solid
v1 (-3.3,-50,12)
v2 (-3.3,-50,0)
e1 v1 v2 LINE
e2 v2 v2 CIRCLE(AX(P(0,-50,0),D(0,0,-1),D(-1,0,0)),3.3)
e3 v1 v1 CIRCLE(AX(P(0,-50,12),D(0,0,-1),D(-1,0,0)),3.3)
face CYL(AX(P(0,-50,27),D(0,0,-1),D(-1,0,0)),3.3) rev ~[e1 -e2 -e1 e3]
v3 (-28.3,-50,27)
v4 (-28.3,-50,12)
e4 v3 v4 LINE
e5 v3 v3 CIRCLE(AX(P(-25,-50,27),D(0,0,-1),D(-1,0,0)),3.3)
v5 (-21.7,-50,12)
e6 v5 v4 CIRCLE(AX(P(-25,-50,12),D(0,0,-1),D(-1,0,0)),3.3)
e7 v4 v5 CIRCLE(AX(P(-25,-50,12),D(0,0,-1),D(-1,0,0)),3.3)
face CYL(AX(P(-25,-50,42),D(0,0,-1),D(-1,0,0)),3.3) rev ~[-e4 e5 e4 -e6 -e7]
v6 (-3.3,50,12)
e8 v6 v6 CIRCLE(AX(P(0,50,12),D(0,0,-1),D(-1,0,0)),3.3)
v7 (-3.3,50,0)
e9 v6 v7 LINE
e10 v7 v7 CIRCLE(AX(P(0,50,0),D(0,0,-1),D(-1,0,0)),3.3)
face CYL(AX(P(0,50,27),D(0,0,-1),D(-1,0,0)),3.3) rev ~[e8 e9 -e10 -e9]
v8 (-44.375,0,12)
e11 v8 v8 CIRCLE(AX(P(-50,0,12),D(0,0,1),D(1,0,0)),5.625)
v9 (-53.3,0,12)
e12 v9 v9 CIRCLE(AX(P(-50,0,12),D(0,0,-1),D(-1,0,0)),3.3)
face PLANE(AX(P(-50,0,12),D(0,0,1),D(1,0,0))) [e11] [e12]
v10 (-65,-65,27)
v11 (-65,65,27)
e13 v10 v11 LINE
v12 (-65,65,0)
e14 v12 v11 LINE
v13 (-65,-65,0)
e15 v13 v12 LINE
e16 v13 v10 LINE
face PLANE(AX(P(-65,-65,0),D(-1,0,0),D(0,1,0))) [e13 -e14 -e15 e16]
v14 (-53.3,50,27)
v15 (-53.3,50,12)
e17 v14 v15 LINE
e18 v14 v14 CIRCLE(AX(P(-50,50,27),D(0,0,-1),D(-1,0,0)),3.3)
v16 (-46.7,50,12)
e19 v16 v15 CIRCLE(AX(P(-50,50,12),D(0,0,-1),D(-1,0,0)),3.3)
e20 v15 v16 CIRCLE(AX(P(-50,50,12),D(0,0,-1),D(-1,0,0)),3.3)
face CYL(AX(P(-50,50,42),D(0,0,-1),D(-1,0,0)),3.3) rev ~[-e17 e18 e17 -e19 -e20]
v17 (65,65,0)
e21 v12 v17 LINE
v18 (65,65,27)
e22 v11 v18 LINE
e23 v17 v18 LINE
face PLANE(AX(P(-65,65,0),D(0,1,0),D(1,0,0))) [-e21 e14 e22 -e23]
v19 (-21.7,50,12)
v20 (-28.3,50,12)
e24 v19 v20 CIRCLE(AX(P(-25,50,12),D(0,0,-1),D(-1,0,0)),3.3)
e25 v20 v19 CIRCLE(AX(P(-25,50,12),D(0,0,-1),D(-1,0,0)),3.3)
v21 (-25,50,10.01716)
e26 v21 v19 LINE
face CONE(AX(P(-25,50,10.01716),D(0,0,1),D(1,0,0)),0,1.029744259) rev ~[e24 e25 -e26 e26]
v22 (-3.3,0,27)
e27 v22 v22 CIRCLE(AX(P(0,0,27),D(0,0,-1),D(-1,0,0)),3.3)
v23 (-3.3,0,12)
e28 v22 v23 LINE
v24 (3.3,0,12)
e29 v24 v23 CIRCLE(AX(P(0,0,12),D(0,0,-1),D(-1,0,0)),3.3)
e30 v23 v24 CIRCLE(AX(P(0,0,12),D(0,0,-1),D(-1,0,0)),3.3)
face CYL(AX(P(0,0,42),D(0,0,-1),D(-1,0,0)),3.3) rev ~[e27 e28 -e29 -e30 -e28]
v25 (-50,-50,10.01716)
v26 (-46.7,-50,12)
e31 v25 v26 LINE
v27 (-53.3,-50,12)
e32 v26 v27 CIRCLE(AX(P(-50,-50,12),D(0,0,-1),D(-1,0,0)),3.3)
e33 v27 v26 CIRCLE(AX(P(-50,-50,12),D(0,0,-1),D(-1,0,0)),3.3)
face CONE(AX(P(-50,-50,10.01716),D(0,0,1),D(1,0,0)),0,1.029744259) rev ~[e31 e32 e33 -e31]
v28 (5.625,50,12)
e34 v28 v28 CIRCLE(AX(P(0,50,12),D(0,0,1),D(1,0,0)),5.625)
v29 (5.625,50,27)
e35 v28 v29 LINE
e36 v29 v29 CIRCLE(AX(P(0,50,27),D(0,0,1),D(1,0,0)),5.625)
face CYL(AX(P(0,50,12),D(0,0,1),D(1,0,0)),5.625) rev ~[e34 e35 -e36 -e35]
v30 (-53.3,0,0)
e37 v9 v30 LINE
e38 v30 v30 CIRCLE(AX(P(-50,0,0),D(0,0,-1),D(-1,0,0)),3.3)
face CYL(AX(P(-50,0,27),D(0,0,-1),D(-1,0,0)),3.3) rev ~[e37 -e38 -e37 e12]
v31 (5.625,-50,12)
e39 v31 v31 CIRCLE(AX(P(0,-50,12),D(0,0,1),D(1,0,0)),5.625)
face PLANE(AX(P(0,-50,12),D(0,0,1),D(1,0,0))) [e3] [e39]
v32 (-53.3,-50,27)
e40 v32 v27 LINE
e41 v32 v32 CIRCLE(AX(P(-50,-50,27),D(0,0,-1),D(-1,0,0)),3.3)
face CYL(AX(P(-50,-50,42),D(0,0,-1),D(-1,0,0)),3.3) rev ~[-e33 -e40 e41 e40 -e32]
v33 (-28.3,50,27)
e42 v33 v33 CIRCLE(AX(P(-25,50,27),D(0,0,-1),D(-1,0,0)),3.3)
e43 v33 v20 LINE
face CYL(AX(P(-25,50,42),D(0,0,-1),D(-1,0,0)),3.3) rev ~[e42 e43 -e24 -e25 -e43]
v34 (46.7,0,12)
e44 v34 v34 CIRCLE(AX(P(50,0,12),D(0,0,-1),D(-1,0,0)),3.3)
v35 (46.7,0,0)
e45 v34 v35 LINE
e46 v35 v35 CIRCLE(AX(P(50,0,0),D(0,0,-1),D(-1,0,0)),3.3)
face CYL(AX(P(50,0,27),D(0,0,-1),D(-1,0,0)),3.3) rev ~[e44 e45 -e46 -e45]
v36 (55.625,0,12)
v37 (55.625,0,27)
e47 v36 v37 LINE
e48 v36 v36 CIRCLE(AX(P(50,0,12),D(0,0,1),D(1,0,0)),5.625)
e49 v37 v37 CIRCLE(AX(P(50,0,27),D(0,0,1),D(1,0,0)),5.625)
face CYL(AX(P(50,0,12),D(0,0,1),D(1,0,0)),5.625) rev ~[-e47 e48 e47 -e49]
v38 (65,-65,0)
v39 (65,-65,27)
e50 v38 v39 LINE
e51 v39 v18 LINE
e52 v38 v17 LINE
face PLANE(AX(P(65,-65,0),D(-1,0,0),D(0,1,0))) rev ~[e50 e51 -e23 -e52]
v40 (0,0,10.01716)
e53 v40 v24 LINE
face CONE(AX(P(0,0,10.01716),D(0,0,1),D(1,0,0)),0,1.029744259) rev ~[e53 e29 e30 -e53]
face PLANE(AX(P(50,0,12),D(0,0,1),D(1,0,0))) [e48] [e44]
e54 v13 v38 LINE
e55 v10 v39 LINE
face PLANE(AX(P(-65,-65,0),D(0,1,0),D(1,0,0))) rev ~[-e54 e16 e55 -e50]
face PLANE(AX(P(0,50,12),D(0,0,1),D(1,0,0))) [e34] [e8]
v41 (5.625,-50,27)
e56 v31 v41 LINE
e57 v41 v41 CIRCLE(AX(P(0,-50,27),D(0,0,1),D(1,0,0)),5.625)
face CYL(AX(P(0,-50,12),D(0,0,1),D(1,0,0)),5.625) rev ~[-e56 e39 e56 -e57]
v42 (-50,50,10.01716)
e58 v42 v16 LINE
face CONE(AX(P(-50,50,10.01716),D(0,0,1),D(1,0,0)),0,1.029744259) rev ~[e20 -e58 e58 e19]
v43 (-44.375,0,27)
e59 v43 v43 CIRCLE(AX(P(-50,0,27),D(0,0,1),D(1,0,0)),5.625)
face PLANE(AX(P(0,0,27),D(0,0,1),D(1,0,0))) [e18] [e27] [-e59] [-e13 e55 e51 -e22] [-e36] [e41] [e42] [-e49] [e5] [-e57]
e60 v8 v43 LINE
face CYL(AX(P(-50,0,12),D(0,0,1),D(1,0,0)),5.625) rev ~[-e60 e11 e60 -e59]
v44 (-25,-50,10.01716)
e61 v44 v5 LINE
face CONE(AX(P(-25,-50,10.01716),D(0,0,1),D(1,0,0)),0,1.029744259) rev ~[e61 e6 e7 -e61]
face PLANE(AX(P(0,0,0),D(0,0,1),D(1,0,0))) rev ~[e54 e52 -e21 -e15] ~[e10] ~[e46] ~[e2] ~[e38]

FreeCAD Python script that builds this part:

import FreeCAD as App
import Part
import Sketcher
from FreeCAD import Vector
Q = App.Units.Quantity


def add_polygon(sketch, points):
    """Adds a closed chain of lines whose ends are joined by coincident constraints."""
    first, n = sketch.GeometryCount, len(points)
    for a, b in zip(points, points[1:] + points[:1]):
        sketch.addGeometry(Part.LineSegment(App.Vector(*a, 0), App.Vector(*b, 0)), False)
    for i in range(n):
        sketch.addConstraint(Sketcher.Constraint("Coincident", first + i, 2, first + (i + 1) % n, 1))

doc = App.newDocument("Part")
body = doc.addObject("PartDesign::Body", "Body")

# Sketch on XY plane
sketch1 = doc.addObject("Sketcher::SketchObject", "Sketch")
body.addObject(sketch1)
sketch1.AttachmentSupport = (doc.XY_Plane, [""])
sketch1.MapMode = "FlatFace"
add_polygon(sketch1, [(-65, 65), (-65, -65), (65, -65), (65, 65)])  # lines 0-3
sketch1.addConstraint([
    Sketcher.Constraint("Vertical", 0),
    Sketcher.Constraint("Horizontal", 1),
    Sketcher.Constraint("Vertical", 2),
    Sketcher.Constraint("Horizontal", 3),
    Sketcher.Constraint("Symmetric", 0, 2, 2, 2, -1, 1),
    Sketcher.Constraint("Equal", 3, 0),
    Sketcher.Constraint("DistanceX", 1, 1, 1, 2, Q("130 mm")),
])
pad1 = doc.addObject("PartDesign::Pad", "Pad")
body.addObject(pad1)
pad1.Profile = sketch1
pad1.Length = 27

# Sketch on XY plane
sketch2 = doc.addObject("Sketcher::SketchObject", "Sketch001")
body.addObject(sketch2)
sketch2.AttachmentSupport = (doc.XY_Plane, [""])
sketch2.MapMode = "FlatFace"
sketch2.AttachmentOffset = App.Placement(Vector(0, 0, 27), App.Rotation())
sketch2.addGeometry([
    Part.Circle(Vector(0, 50, 0), Vector(0, 0, 1), 3.3),
    Part.Circle(Vector(-50, 0, 0), Vector(0, 0, 1), 3.3),
    Part.Circle(Vector(0, -50, 0), Vector(0, 0, 1), 3.3),
    Part.Circle(Vector(50, 0, 0), Vector(0, 0, 1), 3.3),
], False)
sketch2.addConstraint([
    Sketcher.Constraint("Equal", 0, 1),
    Sketcher.Constraint("Equal", 1, 2),
    Sketcher.Constraint("Equal", 2, 3),
    Sketcher.Constraint("Symmetric", 0, 3, 2, 3, -1, 1),
    Sketcher.Constraint("Symmetric", 1, 3, 3, 3, -1, 1),
    Sketcher.Constraint("PointOnObject", 0, 3, -2),
    Sketcher.Constraint("PointOnObject", 1, 3, -1),
    Sketcher.Constraint("Diameter", 0, Q("6.6 mm")),
    Sketcher.Constraint("DistanceY", -1, 1, 0, 3, Q("50 mm")),
    Sketcher.Constraint("DistanceX", 1, 3, -1, 1, Q("50 mm")),
])
doc.recompute()
hole = doc.addObject("PartDesign::Hole", "Hole")
body.addObject(hole)
hole.Profile = sketch2
hole.ThreadType = "None"
hole.Diameter = 6.6
hole.DepthType = "ThroughAll"
hole.HoleCutType = "Counterbore"
hole.HoleCutDiameter = 11.25
hole.HoleCutDepth = 15

# Sketch on XY plane
sketch3 = doc.addObject("Sketcher::SketchObject", "Sketch002")
body.addObject(sketch3)
sketch3.AttachmentSupport = (doc.XY_Plane, [""])
sketch3.MapMode = "FlatFace"
sketch3.AttachmentOffset = App.Placement(Vector(0, 0, 27), App.Rotation())
sketch3.addGeometry([
    Part.Circle(Vector(-25, 50, 0), Vector(0, 0, 1), 3.3),  # 0
    Part.Circle(Vector(-25, -50, 0), Vector(0, 0, 1), 3.3),  # 1
    Part.Circle(Vector(-50, -50, 0), Vector(0, 0, 1), 3.3),  # 2
    Part.Circle(Vector(-50, 50, 0), Vector(0, 0, 1), 3.3),  # 3
    Part.Circle(Vector(0, 0, 0), Vector(0, 0, 1), 3.3),  # 4
], False)
sketch3.addConstraint([
    Sketcher.Constraint("Coincident", 4, 3, -1, 1),
    Sketcher.Constraint("Equal", 0, 1),
    Sketcher.Constraint("Equal", 1, 2),
    Sketcher.Constraint("Equal", 2, 3),
    Sketcher.Constraint("Equal", 3, 4),
    Sketcher.Constraint("Symmetric", 0, 3, 1, 3, -1),
    Sketcher.Constraint("Symmetric", 2, 3, 3, 3, -1),
    Sketcher.Constraint("Horizontal", 1, 3, 2, 3),
    Sketcher.Constraint("Diameter", 0, Q("6.6 mm")),
    Sketcher.Constraint("DistanceX", 0, 3, -1, 1, Q("25 mm")),
    Sketcher.Constraint("DistanceY", -1, 1, 0, 3, Q("50 mm")),
    Sketcher.Constraint("DistanceX", 2, 3, -1, 1, Q("50 mm")),
])
doc.recompute()
hole2 = doc.addObject("PartDesign::Hole", "Hole001")
body.addObject(hole2)
hole2.Profile = sketch3
hole2.ThreadType = "None"
hole2.Diameter = 6.6
hole2.DepthType = "Dimension"
hole2.Depth = 15
hole2.DrillPoint = "Angled"
hole2.DrillPointAngle = 118

doc.recompute()
